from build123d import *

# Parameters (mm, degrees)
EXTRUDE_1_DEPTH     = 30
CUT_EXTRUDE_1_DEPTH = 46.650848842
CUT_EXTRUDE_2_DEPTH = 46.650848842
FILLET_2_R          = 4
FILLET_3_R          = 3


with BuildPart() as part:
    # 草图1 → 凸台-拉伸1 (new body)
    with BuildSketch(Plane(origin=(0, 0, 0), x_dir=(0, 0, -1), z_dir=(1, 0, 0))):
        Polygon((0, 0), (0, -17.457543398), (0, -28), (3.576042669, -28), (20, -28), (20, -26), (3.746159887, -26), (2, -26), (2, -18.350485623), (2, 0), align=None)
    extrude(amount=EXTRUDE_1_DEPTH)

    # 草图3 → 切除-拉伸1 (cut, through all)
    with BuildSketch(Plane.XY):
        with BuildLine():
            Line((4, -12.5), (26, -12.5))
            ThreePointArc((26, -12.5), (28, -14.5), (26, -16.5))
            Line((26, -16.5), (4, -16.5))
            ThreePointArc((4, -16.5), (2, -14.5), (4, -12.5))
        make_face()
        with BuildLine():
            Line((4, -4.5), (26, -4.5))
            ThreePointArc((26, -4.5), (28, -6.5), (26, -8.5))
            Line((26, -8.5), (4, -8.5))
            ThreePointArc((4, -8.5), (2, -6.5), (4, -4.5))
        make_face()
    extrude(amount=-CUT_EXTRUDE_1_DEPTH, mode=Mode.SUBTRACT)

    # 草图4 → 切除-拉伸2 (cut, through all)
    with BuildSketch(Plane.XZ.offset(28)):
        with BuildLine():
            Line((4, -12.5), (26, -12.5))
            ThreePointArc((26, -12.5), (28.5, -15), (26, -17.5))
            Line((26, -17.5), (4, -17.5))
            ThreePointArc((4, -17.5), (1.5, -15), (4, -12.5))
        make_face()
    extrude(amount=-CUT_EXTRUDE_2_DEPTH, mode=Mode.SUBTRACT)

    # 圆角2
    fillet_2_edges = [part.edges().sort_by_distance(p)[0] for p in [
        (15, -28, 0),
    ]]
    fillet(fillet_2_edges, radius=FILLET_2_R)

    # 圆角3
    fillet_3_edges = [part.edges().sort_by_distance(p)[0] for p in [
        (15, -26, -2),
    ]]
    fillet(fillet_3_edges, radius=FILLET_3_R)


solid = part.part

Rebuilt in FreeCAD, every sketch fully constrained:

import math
import FreeCAD as App
import Part
import Sketcher


def edges_at(feature, points):
    """Names of the edges that pass closest to the given points."""
    edges = feature.Shape.Edges
    near = lambda p: min(range(len(edges)), key=lambda i: edges[i].distToShape(Part.Vertex(*p))[0])
    return sorted({f"Edge{near(p) + 1}" for p in points})


def add_polygon(sketch, points):
    """Adds a closed chain of lines whose ends are joined by coincident constraints."""
    first, n = sketch.GeometryCount, len(points)
    for a, b in zip(points, points[1:] + points[:1]):
        sketch.addGeometry(Part.LineSegment(App.Vector(*a, 0), App.Vector(*b, 0)), False)
    for i in range(n):
        sketch.addConstraint(Sketcher.Constraint("Coincident", first + i, 2, first + (i + 1) % n, 1))

doc = App.newDocument("Part")
body = doc.addObject("PartDesign::Body", "Body")

# Sketch on YZ plane
sketch1 = body.newObject("Sketcher::SketchObject", "Sketch")
sketch1.AttachmentSupport = (doc.getObject("YZ_Plane"), [""])
sketch1.MapMode = "FlatFace"
add_polygon(sketch1, [(0, 0), (-28, 0), (-28, -20), (-26, -20), (-26, -2), (0, -2)])  # lines 0-5
sketch1.addConstraint([
    Sketcher.Constraint("Horizontal", 0),
    Sketcher.Constraint("Vertical", 1),
    Sketcher.Constraint("Horizontal", 2),
    Sketcher.Constraint("Vertical", 3),
    Sketcher.Constraint("Horizontal", 4),
    Sketcher.Constraint("Vertical", 5),
    Sketcher.Constraint("Coincident", 5, 2, -1, 1),
    Sketcher.Constraint("Equal", 2, 5),
    Sketcher.Constraint("DistanceX", 0, 2, 0, 1, 28.0),
    Sketcher.Constraint("DistanceX", 2, 1, 2, 2, 2.0),
    Sketcher.Constraint("DistanceY", 1, 2, 1, 1, 20.0),
])
pad1 = body.newObject("PartDesign::Pad", "Pad")
pad1.Profile = sketch1
pad1.Length = 30

# Sketch on XY plane
sketch2 = body.newObject("Sketcher::SketchObject", "Sketch001")
sketch2.AttachmentSupport = (doc.getObject("XY_Plane"), [""])
sketch2.MapMode = "FlatFace"
sketch2.addGeometry([
    Part.LineSegment(App.Vector(26, -12.5, 0), App.Vector(4, -12.5, 0)),  # 0
    Part.ArcOfCircle(Part.Circle(App.Vector(4, -14.5, 0), App.Vector(0, 0, 1), 2), math.radians(90), math.radians(270)),  # 1
    Part.LineSegment(App.Vector(4, -16.5, 0), App.Vector(26, -16.5, 0)),  # 2
    Part.ArcOfCircle(Part.Circle(App.Vector(26, -14.5, 0), App.Vector(0, 0, 1), 2), math.radians(-90), math.radians(90)),  # 3
    Part.LineSegment(App.Vector(26, -4.5, 0), App.Vector(4, -4.5, 0)),  # 4
    Part.ArcOfCircle(Part.Circle(App.Vector(4, -6.5, 0), App.Vector(0, 0, 1), 2), math.radians(90), math.radians(270)),  # 5
    Part.LineSegment(App.Vector(4, -8.5, 0), App.Vector(26, -8.5, 0)),  # 6
    Part.ArcOfCircle(Part.Circle(App.Vector(26, -6.5, 0), App.Vector(0, 0, 1), 2), math.radians(-90), math.radians(90)),  # 7
], False)
sketch2.addConstraint([
    Sketcher.Constraint("Tangent", 0, 2, 1, 1),
    Sketcher.Constraint("Tangent", 1, 2, 2, 1),
    Sketcher.Constraint("Tangent", 2, 2, 3, 1),
    Sketcher.Constraint("Tangent", 3, 2, 0, 1),
    Sketcher.Constraint("Tangent", 4, 2, 5, 1),
    Sketcher.Constraint("Tangent", 5, 2, 6, 1),
    Sketcher.Constraint("Tangent", 6, 2, 7, 1),
    Sketcher.Constraint("Tangent", 7, 2, 4, 1),
    Sketcher.Constraint("Horizontal", 0),
    Sketcher.Constraint("Horizontal", 2),
    Sketcher.Constraint("Horizontal", 4),
    Sketcher.Constraint("Horizontal", 6),
    Sketcher.Constraint("Equal", 3, 5),
    Sketcher.Constraint("Vertical", 1, 3, 5, 3),
    Sketcher.Constraint("Vertical", 3, 3, 7, 3),
    Sketcher.Constraint("Radius", 1, 2.0),
    Sketcher.Constraint("DistanceX", 0, 2, 0, 1, 22.0),
    Sketcher.Constraint("DistanceX", -1, 1, 1, 3, 4.0),
    Sketcher.Constraint("DistanceY", 1, 3, 5, 3, 8.0),
    Sketcher.Constraint("DistanceY", 1, 3, -1, 1, 14.5),
])
pocket1 = body.newObject("PartDesign::Pocket", "Pocket")
pocket1.Profile = sketch2
pocket1.Type = "ThroughAll"

# Sketch on XZ plane
sketch3 = body.newObject("Sketcher::SketchObject", "Sketch002")
sketch3.AttachmentSupport = (doc.getObject("XZ_Plane"), [""])
sketch3.MapMode = "FlatFace"
sketch3.AttachmentOffset = App.Placement(App.Vector(0, 0, 28), App.Rotation())
sketch3.addGeometry([
    Part.LineSegment(App.Vector(26, -12.5, 0), App.Vector(4, -12.5, 0)),
    Part.ArcOfCircle(Part.Circle(App.Vector(4, -15, 0), App.Vector(0, 0, 1), 2.5), math.radians(90), math.radians(270)),
    Part.LineSegment(App.Vector(4, -17.5, 0), App.Vector(26, -17.5, 0)),
    Part.ArcOfCircle(Part.Circle(App.Vector(26, -15, 0), App.Vector(0, 0, 1), 2.5), math.radians(-90), math.radians(90)),
], False)
sketch3.addConstraint([
    Sketcher.Constraint("Tangent", 0, 2, 1, 1),
    Sketcher.Constraint("Tangent", 1, 2, 2, 1),
    Sketcher.Constraint("Tangent", 2, 2, 3, 1),
    Sketcher.Constraint("Tangent", 3, 2, 0, 1),
    Sketcher.Constraint("Horizontal", 0),
    Sketcher.Constraint("Horizontal", 2),
    Sketcher.Constraint("Radius", 1, 2.5),
    Sketcher.Constraint("DistanceX", 0, 2, 0, 1, 22.0),
    Sketcher.Constraint("DistanceX", -1, 1, 1, 3, 4.0),
    Sketcher.Constraint("DistanceY", 1, 3, -1, 1, 15.0),
])
pocket2 = body.newObject("PartDesign::Pocket", "Pocket001")
pocket2.Profile = sketch3
pocket2.Type = "ThroughAll"
doc.recompute()

fillet = body.newObject("PartDesign::Fillet", "Fillet")
fillet.Base = (pocket2, edges_at(pocket2, [(15, -28, 0)]))
fillet.Radius = 4
doc.recompute()

fillet2 = body.newObject("PartDesign::Fillet", "Fillet001")
fillet2.Base = (fillet, edges_at(fillet, [(15, -26, -2)]))
fillet2.Radius = 3

doc.recompute()
